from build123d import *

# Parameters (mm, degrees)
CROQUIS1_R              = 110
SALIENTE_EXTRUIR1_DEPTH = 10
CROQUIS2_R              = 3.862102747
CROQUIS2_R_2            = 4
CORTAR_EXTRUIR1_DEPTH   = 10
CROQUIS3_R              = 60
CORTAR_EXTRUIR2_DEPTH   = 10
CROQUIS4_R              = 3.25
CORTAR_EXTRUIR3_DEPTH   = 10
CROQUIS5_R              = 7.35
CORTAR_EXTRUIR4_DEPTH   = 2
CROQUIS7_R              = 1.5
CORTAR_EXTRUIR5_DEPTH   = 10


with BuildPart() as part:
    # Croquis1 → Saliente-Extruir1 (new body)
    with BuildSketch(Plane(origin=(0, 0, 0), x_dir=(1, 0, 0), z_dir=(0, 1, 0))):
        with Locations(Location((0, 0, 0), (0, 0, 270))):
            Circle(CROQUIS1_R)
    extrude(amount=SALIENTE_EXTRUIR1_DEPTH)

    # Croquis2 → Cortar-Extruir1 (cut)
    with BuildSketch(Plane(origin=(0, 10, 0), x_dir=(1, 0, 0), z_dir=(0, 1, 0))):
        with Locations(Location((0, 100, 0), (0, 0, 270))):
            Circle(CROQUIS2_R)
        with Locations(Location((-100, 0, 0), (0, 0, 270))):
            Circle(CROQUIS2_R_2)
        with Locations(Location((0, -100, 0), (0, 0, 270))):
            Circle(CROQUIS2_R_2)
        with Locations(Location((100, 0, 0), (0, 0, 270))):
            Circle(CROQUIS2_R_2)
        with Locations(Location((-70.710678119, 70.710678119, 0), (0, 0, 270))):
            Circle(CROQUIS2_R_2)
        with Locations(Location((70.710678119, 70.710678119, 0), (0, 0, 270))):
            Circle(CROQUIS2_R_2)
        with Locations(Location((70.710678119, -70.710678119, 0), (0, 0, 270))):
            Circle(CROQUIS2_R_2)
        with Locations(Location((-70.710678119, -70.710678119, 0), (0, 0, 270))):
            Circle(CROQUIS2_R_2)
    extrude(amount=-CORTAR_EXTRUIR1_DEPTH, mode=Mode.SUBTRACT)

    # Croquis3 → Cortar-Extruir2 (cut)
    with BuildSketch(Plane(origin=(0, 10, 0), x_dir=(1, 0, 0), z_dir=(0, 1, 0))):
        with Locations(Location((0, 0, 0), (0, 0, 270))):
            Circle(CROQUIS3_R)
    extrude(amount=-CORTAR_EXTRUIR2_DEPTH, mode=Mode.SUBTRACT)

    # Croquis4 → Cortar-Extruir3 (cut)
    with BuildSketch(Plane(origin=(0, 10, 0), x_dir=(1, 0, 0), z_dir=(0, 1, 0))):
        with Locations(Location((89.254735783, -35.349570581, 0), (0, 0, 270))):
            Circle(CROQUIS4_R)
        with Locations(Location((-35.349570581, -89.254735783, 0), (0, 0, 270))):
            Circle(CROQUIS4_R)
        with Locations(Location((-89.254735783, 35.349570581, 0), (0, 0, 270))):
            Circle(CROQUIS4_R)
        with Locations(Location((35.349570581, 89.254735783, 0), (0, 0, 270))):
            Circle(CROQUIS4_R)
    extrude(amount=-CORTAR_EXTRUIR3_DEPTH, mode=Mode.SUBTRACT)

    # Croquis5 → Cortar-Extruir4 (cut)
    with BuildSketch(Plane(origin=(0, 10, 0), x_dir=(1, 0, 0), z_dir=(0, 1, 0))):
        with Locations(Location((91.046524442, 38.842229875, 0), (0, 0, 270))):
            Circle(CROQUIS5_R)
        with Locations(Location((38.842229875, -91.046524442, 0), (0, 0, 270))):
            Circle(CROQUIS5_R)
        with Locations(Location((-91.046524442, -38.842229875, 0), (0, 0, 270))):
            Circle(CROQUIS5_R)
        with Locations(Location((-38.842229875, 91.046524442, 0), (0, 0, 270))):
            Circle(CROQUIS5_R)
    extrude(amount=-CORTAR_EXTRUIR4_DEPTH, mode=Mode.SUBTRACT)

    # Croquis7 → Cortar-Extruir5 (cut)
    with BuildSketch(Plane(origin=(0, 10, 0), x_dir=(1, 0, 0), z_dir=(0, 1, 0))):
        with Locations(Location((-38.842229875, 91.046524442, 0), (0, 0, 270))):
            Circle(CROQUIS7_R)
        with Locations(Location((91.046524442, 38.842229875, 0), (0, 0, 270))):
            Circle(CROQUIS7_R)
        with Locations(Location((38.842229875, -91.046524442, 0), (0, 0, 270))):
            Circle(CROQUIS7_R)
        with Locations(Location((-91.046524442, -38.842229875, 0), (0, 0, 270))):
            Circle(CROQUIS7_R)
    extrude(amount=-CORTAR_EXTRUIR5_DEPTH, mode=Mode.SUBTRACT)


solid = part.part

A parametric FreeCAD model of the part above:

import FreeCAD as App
import Part
import Sketcher
from FreeCAD import Vector
Q = App.Units.Quantity

doc = App.newDocument("Part")
params = doc.addObject("Spreadsheet::Sheet", "Params")
for row, (alias, value) in enumerate([
    ("sketch1_diameter", "220 mm"),
    ("pad1_length", "10 mm"),
    ("sketch2_diameter", "8 mm"),
    ("pocket1_length", "10 mm"),
    ("sketch3_diameter", "120 mm"),
    ("pocket2_length", "10 mm"),
    ("sketch4_diameter", "6.5 mm"),
    ("pocket3_length", "10 mm"),
    ("sketch5_diameter", "14.7 mm"),
    ("pocket4_length", "2 mm"),
    ("sketch6_diameter", "3 mm"),
    ("pocket5_length", "10 mm"),
], start=1):
    params.set(f"A{row}", alias)
    params.set(f"B{row}", "=" + value)
    params.setAlias(f"B{row}", alias)

body = doc.addObject("PartDesign::Body", "Body")

# Sketch on XZ plane
sketch1 = body.newObject("Sketcher::SketchObject", "Sketch")
sketch1.AttachmentSupport = (doc.getObject("XZ_Plane"), [""])
sketch1.MapMode = "FlatFace"
sketch1.addGeometry(Part.Circle(Vector(0, 0, 0), Vector(0, 0, 1), 110), False)
sketch1.addConstraint([
    Sketcher.Constraint("Coincident", 0, 3, -1, 1),
    Sketcher.Constraint("Diameter", 0, Q("220 mm")),
])
sketch1.setExpression("Constraints[1]", "Params.sketch1_diameter")
pad1 = body.newObject("PartDesign::Pad", "Pad")
pad1.Profile = sketch1
pad1.setExpression("Length", "Params.pad1_length")
pad1.Reversed = True

# Sketch on XZ plane
sketch2 = body.newObject("Sketcher::SketchObject", "Sketch001")
sketch2.AttachmentSupport = (doc.getObject("XZ_Plane"), [""])
sketch2.MapMode = "FlatFace"
sketch2.AttachmentOffset = App.Placement(Vector(0, 0, -10), App.Rotation())
sketch2.addGeometry([
    Part.Circle(Vector(0, -100, 0), Vector(0, 0, 1), 3.9),  # 0
    Part.Circle(Vector(-100, 0, 0), Vector(0, 0, 1), 4),  # 1
    Part.Circle(Vector(0, 100, 0), Vector(0, 0, 1), 4),  # 2
    Part.Circle(Vector(100, 0, 0), Vector(0, 0, 1), 4),  # 3
    Part.Circle(Vector(-70.7, -70.7, 0), Vector(0, 0, 1), 4),  # 4
    Part.Circle(Vector(70.7, -70.7, 0), Vector(0, 0, 1), 4),  # 5
    Part.Circle(Vector(70.7, 70.7, 0), Vector(0, 0, 1), 4),  # 6
    Part.Circle(Vector(-70.7, 70.7, 0), Vector(0, 0, 1), 4),  # 7
], False)
sketch2.addConstraint([
    Sketcher.Constraint("Equal", 1, 2),
    Sketcher.Constraint("Equal", 2, 3),
    Sketcher.Constraint("Equal", 3, 4),
    Sketcher.Constraint("Equal", 4, 5),
    Sketcher.Constraint("Equal", 5, 6),
    Sketcher.Constraint("Equal", 6, 7),
    Sketcher.Constraint("Symmetric", 0, 3, 2, 3, -1, 1),
    Sketcher.Constraint("Symmetric", 1, 3, 3, 3, -1, 1),
    Sketcher.Constraint("Symmetric", 4, 3, 6, 3, -1, 1),
    Sketcher.Constraint("Symmetric", 5, 3, 7, 3, -1, 1),
    Sketcher.Constraint("Symmetric", 4, 3, 5, 3, -2),
    Sketcher.Constraint("PointOnObject", 0, 3, -2),
    Sketcher.Constraint("PointOnObject", 1, 3, -1),
    Sketcher.Constraint("Diameter", 1, Q("8 mm")),
    Sketcher.Constraint("DistanceY", 0, 3, -1, 1, Q("100 mm")),
    Sketcher.Constraint("DistanceX", 1, 3, -1, 1, Q("100 mm")),
    Sketcher.Constraint("Diameter", 0, Q("7.724205 mm")),
    Sketcher.Constraint("DistanceX", 4, 3, -1, 1, Q("70.710678 mm")),
    Sketcher.Constraint("DistanceY", 4, 3, -1, 1, Q("70.710678 mm")),
])
sketch2.setExpression("Constraints[13]", "Params.sketch2_diameter")
pocket1 = body.newObject("PartDesign::Pocket", "Pocket")
pocket1.Profile = sketch2
pocket1.setExpression("Length", "Params.pocket1_length")
pocket1.Reversed = True

# Sketch on XZ plane
sketch3 = body.newObject("Sketcher::SketchObject", "Sketch002")
sketch3.AttachmentSupport = (doc.getObject("XZ_Plane"), [""])
sketch3.MapMode = "FlatFace"
sketch3.AttachmentOffset = App.Placement(Vector(0, 0, -10), App.Rotation())
sketch3.addGeometry(Part.Circle(Vector(0, 0, 0), Vector(0, 0, 1), 60), False)
sketch3.addConstraint([
    Sketcher.Constraint("Coincident", 0, 3, -1, 1),
    Sketcher.Constraint("Diameter", 0, Q("120 mm")),
])
sketch3.setExpression("Constraints[1]", "Params.sketch3_diameter")
pocket2 = body.newObject("PartDesign::Pocket", "Pocket001")
pocket2.Profile = sketch3
pocket2.setExpression("Length", "Params.pocket2_length")
pocket2.Reversed = True

# Sketch on XZ plane
sketch4 = body.newObject("Sketcher::SketchObject", "Sketch003")
sketch4.AttachmentSupport = (doc.getObject("XZ_Plane"), [""])
sketch4.MapMode = "FlatFace"
sketch4.AttachmentOffset = App.Placement(Vector(0, 0, -10), App.Rotation())
sketch4.addGeometry([
    Part.Circle(Vector(89.3, 35.3, 0), Vector(0, 0, 1), 3.2),
    Part.Circle(Vector(-35.3, 89.3, 0), Vector(0, 0, 1), 3.2),
    Part.Circle(Vector(-89.3, -35.3, 0), Vector(0, 0, 1), 3.2),
    Part.Circle(Vector(35.3, -89.3, 0), Vector(0, 0, 1), 3.2),
], False)
sketch4.addConstraint([
    Sketcher.Constraint("Equal", 0, 1),
    Sketcher.Constraint("Equal", 1, 2),
    Sketcher.Constraint("Equal", 2, 3),
    Sketcher.Constraint("Symmetric", 0, 3, 2, 3, -1, 1),
    Sketcher.Constraint("Symmetric", 1, 3, 3, 3, -1, 1),
    Sketcher.Constraint("Diameter", 0, Q("6.5 mm")),
    Sketcher.Constraint("DistanceY", -1, 1, 0, 3, Q("35.349571 mm")),
    Sketcher.Constraint("DistanceX", 1, 3, -1, 1, Q("35.349571 mm")),
    Sketcher.Constraint("DistanceX", 2, 3, 0, 3, Q("178.509472 mm")),
    Sketcher.Constraint("DistanceY", 3, 3, 1, 3, Q("178.509472 mm")),
])
sketch4.setExpression("Constraints[5]", "Params.sketch4_diameter")
pocket3 = body.newObject("PartDesign::Pocket", "Pocket002")
pocket3.Profile = sketch4
pocket3.setExpression("Length", "Params.pocket3_length")
pocket3.Reversed = True

# Sketch on XZ plane
sketch5 = body.newObject("Sketcher::SketchObject", "Sketch004")
sketch5.AttachmentSupport = (doc.getObject("XZ_Plane"), [""])
sketch5.MapMode = "FlatFace"
sketch5.AttachmentOffset = App.Placement(Vector(0, 0, -10), App.Rotation())
sketch5.addGeometry([
    Part.Circle(Vector(91, -39, 0), Vector(0, 0, 1), 7),
    Part.Circle(Vector(39, 91, 0), Vector(0, 0, 1), 7),
    Part.Circle(Vector(-91, 39, 0), Vector(0, 0, 1), 7),
    Part.Circle(Vector(-39, -91, 0), Vector(0, 0, 1), 7),
], False)
sketch5.addConstraint([
    Sketcher.Constraint("Equal", 0, 1),
    Sketcher.Constraint("Equal", 1, 2),
    Sketcher.Constraint("Equal", 2, 3),
    Sketcher.Constraint("Symmetric", 0, 3, 2, 3, -1, 1),
    Sketcher.Constraint("Symmetric", 1, 3, 3, 3, -1, 1),
    Sketcher.Constraint("Diameter", 0, Q("14.7 mm")),
    Sketcher.Constraint("DistanceY", 0, 3, -1, 1, Q("38.84223 mm")),
    Sketcher.Constraint("DistanceX", -1, 1, 1, 3, Q("38.84223 mm")),
    Sketcher.Constraint("DistanceX", 2, 3, 0, 3, Q("182.093049 mm")),
    Sketcher.Constraint("DistanceY", 3, 3, 1, 3, Q("182.093049 mm")),
])
sketch5.setExpression("Constraints[5]", "Params.sketch5_diameter")
pocket4 = body.newObject("PartDesign::Pocket", "Pocket003")
pocket4.Profile = sketch5
pocket4.setExpression("Length", "Params.pocket4_length")
pocket4.Reversed = True

# Sketch on XZ plane
sketch6 = body.newObject("Sketcher::SketchObject", "Sketch005")
sketch6.AttachmentSupport = (doc.getObject("XZ_Plane"), [""])
sketch6.MapMode = "FlatFace"
sketch6.AttachmentOffset = App.Placement(Vector(0, 0, -10), App.Rotation())
sketch6.addGeometry([
    Part.Circle(Vector(-38.8, -91, 0), Vector(0, 0, 1), 1.5),
    Part.Circle(Vector(91, -38.8, 0), Vector(0, 0, 1), 1.5),
    Part.Circle(Vector(38.8, 91, 0), Vector(0, 0, 1), 1.5),
    Part.Circle(Vector(-91, 38.8, 0), Vector(0, 0, 1), 1.5),
], False)
sketch6.addConstraint([
    Sketcher.Constraint("Equal", 0, 1),
    Sketcher.Constraint("Equal", 1, 2),
    Sketcher.Constraint("Equal", 2, 3),
    Sketcher.Constraint("Symmetric", 0, 3, 2, 3, -1, 1),
    Sketcher.Constraint("Symmetric", 1, 3, 3, 3, -1, 1),
    Sketcher.Constraint("Diameter", 0, Q("3 mm")),
    Sketcher.Constraint("DistanceX", 0, 3, -1, 1, Q("38.84223 mm")),
    Sketcher.Constraint("DistanceY", 1, 3, -1, 1, Q("38.84223 mm")),
    Sketcher.Constraint("DistanceY", 0, 3, 2, 3, Q("182.093049 mm")),
    Sketcher.Constraint("DistanceX", 3, 3, 1, 3, Q("182.093049 mm")),
])
sketch6.setExpression("Constraints[5]", "Params.sketch6_diameter")
pocket5 = body.newObject("PartDesign::Pocket", "Pocket004")
pocket5.Profile = sketch6
pocket5.setExpression("Length", "Params.pocket5_length")
pocket5.Reversed = True

doc.recompute()
